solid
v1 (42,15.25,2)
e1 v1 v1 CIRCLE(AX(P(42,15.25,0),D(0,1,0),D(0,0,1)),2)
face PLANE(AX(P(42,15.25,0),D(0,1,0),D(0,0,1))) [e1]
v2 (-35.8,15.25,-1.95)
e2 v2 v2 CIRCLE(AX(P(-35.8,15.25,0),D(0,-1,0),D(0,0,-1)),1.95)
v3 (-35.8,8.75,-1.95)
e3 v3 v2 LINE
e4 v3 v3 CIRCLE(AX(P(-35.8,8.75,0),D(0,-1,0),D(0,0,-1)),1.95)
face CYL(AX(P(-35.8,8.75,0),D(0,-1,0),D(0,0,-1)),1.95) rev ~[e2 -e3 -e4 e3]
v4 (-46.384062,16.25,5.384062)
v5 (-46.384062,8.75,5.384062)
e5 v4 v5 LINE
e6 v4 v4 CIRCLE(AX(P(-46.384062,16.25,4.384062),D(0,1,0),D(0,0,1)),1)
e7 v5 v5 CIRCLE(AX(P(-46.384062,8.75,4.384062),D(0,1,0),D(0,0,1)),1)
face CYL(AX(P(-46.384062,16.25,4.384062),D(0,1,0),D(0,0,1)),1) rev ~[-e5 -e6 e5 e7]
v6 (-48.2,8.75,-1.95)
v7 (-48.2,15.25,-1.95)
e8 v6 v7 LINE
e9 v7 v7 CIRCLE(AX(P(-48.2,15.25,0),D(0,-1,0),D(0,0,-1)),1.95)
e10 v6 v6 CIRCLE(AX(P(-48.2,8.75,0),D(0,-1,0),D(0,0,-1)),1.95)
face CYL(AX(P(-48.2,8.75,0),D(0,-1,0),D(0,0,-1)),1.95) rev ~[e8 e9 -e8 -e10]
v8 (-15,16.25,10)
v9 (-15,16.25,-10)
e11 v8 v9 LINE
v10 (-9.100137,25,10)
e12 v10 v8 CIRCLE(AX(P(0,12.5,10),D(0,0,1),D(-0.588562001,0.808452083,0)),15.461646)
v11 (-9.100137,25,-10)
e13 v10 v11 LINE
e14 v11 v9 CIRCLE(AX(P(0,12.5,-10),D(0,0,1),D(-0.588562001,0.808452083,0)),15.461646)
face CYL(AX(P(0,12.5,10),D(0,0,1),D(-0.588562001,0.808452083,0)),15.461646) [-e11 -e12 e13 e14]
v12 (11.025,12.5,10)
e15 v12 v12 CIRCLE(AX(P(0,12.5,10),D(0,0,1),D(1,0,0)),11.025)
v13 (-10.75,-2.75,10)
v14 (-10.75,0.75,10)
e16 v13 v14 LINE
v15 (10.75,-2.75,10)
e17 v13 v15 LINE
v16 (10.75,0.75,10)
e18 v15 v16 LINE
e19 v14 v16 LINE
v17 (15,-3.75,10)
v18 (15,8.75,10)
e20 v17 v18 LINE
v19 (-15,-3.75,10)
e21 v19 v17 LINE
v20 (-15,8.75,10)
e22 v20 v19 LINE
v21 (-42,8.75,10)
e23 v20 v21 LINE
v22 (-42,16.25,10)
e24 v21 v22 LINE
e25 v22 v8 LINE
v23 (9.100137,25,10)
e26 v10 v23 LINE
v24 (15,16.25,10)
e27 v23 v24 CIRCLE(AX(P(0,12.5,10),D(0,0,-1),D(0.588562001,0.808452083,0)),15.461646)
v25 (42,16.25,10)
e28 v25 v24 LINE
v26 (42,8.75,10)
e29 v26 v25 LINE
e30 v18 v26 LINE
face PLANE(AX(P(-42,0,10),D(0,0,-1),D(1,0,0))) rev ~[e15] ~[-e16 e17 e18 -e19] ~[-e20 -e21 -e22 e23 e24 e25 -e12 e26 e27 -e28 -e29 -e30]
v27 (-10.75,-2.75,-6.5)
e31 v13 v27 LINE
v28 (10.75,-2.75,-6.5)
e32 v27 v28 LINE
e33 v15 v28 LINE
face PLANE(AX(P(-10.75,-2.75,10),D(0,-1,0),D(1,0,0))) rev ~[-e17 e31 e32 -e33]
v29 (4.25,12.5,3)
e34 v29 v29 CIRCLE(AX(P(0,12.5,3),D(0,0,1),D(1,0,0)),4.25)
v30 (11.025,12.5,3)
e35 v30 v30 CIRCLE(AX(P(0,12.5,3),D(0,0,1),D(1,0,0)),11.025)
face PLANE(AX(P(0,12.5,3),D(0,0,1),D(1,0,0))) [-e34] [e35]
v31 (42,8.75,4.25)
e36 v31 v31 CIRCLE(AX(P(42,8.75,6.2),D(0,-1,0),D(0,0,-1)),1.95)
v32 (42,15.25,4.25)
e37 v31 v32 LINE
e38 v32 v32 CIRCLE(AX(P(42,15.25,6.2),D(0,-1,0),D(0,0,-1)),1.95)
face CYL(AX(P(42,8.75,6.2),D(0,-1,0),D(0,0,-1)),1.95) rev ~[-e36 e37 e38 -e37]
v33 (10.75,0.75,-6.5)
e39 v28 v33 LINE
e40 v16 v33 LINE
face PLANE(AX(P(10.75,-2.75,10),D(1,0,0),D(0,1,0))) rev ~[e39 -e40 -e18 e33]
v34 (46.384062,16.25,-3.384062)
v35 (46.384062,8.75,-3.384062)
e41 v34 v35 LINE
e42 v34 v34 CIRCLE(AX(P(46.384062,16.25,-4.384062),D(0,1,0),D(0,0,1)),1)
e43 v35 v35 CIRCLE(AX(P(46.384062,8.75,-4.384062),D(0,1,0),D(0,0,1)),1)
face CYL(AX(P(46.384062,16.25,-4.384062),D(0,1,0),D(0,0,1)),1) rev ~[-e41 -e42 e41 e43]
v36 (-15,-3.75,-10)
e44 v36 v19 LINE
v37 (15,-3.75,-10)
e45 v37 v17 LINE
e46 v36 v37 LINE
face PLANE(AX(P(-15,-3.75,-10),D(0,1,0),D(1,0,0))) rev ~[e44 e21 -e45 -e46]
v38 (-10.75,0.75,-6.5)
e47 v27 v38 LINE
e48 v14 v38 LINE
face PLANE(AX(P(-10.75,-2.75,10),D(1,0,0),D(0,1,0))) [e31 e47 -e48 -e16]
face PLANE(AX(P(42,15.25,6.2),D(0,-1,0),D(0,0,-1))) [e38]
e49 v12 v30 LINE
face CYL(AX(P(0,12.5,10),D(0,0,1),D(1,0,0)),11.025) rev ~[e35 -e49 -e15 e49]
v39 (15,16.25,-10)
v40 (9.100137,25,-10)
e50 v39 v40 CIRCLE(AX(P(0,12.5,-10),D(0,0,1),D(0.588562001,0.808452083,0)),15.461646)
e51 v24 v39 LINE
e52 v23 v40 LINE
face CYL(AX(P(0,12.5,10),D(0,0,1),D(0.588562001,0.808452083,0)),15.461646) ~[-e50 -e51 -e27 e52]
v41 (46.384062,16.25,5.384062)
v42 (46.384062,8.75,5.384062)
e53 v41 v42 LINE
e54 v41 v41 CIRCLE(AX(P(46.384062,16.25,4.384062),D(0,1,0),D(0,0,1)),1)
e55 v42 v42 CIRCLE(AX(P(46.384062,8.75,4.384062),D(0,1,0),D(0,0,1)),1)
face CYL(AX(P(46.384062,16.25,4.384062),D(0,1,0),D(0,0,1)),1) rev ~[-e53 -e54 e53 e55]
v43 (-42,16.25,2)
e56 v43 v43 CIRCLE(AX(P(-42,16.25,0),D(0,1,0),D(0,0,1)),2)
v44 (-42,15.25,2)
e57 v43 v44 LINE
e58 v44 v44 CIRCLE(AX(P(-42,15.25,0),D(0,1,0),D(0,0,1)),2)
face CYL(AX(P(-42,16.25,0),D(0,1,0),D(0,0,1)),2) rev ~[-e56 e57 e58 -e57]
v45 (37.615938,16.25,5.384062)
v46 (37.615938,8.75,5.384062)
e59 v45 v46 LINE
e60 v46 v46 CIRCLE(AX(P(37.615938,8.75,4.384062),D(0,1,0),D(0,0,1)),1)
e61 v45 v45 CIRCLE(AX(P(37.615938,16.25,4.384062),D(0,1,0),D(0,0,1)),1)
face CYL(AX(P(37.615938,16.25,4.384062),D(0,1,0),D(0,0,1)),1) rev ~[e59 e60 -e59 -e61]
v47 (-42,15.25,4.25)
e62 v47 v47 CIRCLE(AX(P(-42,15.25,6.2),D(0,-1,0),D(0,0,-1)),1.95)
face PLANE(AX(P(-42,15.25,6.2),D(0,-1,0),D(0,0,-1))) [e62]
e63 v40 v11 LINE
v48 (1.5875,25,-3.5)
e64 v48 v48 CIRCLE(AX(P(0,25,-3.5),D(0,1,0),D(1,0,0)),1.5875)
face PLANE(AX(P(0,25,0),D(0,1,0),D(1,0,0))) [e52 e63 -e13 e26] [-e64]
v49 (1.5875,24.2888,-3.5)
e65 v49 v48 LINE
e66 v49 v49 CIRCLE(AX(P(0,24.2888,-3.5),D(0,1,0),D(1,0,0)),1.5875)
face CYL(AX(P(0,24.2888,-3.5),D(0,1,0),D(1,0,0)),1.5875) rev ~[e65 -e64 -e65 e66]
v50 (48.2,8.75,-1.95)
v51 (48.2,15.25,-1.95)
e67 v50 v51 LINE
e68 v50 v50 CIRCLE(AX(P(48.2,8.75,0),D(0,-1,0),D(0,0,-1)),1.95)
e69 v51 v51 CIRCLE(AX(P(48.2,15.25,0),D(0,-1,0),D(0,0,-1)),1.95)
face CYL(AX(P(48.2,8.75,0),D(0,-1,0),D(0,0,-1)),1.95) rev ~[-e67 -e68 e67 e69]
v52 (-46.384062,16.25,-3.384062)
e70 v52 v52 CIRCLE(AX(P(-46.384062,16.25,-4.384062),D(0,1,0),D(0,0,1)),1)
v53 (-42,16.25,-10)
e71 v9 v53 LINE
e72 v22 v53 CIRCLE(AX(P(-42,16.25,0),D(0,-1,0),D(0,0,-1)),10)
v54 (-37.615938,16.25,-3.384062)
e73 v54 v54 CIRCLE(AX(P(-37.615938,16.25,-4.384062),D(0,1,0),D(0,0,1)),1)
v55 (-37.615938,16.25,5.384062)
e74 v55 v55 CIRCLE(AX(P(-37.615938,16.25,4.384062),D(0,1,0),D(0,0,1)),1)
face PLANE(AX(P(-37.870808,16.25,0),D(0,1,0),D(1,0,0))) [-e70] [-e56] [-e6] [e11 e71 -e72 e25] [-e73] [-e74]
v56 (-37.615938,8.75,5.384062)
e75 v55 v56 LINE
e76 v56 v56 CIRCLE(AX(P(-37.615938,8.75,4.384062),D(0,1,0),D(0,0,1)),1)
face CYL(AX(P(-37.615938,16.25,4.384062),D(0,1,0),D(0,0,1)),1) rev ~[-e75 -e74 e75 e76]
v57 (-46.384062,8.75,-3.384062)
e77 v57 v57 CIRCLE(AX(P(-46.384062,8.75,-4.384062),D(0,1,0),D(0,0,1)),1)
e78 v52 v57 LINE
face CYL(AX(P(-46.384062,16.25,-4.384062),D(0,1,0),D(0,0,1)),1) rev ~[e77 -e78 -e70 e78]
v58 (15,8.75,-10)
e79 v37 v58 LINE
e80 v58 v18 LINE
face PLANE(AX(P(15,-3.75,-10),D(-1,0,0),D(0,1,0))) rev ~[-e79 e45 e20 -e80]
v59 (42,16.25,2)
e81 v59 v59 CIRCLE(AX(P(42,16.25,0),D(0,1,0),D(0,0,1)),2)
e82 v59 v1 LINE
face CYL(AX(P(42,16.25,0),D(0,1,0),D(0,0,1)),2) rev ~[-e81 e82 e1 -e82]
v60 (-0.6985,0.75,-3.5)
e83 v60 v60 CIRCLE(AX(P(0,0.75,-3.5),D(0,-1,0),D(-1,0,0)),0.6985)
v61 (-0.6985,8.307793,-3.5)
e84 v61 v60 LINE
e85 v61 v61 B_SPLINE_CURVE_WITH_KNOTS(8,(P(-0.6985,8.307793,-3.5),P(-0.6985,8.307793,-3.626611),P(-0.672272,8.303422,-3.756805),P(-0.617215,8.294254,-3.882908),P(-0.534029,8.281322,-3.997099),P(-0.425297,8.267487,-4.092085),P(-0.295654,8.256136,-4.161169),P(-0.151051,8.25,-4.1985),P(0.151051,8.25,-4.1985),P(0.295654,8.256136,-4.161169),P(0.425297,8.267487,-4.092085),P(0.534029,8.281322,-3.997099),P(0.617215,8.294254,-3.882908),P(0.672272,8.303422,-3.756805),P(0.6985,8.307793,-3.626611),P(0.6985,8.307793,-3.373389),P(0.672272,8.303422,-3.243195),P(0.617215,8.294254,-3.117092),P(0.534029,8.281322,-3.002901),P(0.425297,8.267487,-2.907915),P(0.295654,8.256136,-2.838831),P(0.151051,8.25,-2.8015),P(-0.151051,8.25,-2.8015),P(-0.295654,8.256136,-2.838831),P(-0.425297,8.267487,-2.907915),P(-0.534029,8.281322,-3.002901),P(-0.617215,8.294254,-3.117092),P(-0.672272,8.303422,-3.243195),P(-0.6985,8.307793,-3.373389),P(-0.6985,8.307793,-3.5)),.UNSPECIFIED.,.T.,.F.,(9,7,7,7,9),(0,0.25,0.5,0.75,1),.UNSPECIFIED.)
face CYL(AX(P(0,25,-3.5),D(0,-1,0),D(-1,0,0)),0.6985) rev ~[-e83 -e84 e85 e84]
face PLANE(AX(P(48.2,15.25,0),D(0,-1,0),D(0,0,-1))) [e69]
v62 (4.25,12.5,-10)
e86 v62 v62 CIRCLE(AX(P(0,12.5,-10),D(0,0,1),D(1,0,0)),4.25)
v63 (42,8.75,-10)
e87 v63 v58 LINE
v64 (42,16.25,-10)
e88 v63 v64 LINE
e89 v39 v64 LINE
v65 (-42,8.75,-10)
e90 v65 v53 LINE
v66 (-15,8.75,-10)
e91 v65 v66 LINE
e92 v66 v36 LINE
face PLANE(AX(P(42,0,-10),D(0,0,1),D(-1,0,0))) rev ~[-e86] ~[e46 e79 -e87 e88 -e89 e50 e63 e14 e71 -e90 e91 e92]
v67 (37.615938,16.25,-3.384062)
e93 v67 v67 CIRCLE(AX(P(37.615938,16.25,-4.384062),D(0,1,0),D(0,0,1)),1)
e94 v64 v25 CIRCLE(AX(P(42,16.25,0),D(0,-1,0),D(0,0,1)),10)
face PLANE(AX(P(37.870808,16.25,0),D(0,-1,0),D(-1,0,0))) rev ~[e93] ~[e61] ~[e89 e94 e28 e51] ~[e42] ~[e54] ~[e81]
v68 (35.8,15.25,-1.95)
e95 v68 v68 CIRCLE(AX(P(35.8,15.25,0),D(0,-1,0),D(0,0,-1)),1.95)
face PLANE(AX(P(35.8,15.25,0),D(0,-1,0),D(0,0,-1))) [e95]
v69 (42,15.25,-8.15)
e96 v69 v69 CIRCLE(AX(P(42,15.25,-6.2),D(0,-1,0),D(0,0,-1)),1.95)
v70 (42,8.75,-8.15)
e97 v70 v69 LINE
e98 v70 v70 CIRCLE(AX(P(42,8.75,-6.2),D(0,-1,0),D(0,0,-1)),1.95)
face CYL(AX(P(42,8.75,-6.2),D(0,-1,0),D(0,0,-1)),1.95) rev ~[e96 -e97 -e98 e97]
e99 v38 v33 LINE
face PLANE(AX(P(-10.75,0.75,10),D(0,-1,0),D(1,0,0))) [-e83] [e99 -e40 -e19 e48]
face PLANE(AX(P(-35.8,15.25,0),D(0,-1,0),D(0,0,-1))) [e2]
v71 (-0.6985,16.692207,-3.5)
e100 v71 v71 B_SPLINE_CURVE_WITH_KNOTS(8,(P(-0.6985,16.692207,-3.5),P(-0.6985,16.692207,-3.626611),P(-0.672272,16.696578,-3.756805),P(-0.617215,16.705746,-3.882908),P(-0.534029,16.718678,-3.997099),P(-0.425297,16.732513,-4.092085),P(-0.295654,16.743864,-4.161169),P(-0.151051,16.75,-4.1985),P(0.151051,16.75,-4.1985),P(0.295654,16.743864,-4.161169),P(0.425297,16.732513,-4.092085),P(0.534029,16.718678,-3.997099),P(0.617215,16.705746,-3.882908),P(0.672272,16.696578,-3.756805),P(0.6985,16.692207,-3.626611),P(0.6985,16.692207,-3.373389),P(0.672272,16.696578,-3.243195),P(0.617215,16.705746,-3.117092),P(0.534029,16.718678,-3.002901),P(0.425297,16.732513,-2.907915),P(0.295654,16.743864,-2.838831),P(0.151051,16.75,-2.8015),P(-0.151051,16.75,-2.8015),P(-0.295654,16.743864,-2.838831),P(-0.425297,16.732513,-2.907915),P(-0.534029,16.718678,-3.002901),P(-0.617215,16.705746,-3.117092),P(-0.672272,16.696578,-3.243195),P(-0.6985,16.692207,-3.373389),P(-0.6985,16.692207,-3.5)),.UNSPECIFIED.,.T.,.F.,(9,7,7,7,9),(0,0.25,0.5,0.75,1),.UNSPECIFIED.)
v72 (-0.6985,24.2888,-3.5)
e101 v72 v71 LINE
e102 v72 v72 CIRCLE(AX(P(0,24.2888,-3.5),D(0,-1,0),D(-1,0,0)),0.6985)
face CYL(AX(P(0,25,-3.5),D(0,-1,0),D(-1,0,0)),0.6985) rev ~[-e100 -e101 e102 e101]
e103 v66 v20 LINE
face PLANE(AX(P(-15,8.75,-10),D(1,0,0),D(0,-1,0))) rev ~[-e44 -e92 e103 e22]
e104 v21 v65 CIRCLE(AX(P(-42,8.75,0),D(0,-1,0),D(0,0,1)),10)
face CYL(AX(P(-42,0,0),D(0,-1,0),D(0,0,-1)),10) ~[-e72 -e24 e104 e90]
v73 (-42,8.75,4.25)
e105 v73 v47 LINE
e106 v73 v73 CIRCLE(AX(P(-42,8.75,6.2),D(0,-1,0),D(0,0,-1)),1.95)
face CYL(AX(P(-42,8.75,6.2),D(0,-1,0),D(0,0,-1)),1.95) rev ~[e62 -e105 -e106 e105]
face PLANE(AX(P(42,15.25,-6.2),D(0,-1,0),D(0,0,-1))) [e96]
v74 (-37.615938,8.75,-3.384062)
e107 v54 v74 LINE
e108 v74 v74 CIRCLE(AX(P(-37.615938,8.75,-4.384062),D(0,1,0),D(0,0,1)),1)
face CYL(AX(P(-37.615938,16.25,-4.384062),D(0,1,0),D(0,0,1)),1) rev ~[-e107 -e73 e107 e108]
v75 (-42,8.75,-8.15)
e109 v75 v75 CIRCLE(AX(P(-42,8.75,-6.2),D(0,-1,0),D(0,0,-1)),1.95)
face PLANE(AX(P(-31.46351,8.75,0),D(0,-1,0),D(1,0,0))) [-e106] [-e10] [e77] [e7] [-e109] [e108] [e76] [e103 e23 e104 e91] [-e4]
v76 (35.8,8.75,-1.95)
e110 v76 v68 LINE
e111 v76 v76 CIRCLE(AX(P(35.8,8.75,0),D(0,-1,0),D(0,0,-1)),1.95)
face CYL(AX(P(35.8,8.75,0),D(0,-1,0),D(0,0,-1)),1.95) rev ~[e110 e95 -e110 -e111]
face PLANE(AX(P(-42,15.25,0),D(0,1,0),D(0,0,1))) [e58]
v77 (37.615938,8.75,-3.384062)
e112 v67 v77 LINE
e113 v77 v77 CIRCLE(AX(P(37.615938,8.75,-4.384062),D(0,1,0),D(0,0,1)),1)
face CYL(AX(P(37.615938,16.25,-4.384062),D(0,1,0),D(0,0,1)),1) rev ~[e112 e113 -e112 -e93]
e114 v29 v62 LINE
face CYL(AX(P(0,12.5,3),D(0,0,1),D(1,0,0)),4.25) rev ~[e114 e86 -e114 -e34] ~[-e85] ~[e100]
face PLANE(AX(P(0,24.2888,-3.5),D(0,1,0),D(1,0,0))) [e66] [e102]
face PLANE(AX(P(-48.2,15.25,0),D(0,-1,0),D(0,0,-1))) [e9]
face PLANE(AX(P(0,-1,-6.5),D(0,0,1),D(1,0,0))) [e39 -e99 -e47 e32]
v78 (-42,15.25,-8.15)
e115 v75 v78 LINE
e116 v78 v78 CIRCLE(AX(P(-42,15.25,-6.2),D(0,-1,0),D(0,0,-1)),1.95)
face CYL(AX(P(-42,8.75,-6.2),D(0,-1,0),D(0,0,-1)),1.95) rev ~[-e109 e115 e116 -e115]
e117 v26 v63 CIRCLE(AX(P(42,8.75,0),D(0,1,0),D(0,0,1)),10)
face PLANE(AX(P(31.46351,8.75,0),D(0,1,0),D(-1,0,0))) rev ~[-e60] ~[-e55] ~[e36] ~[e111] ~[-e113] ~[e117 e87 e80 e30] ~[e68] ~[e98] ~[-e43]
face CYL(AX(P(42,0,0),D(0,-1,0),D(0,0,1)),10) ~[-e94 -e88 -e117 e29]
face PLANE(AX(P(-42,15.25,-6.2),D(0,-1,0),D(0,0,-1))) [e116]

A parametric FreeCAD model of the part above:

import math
import FreeCAD as App
import Part
import Sketcher


def add_polygon(sketch, points):
    """Adds a closed chain of lines whose ends are joined by coincident constraints."""
    first, n = sketch.GeometryCount, len(points)
    for a, b in zip(points, points[1:] + points[:1]):
        sketch.addGeometry(Part.LineSegment(App.Vector(*a, 0), App.Vector(*b, 0)), False)
    for i in range(n):
        sketch.addConstraint(Sketcher.Constraint("Coincident", first + i, 2, first + (i + 1) % n, 1))

doc = App.newDocument("Part")
body = doc.addObject("PartDesign::Body", "Body")

sketch1 = doc.addObject("Sketcher::SketchObject", "Sketch")
body.addObject(sketch1)
sketch1.AttachmentSupport = (doc.XZ_Plane, [""])
sketch1.MapMode = "FlatFace"
sketch1.addGeometry(Part.LineSegment(App.Vector(-42, 10, 0), App.Vector(42, 10, 0)), False)
sketch1.addGeometry(Part.ArcOfCircle(Part.Circle(App.Vector(42, 0, 0), App.Vector(0, 0, 1), 10), math.radians(-90), math.radians(90)), False)
sketch1.addGeometry(Part.LineSegment(App.Vector(42, -10, 0), App.Vector(-42, -10, 0)), False)
sketch1.addGeometry(Part.ArcOfCircle(Part.Circle(App.Vector(-42, 0, 0), App.Vector(0, 0, 1), 10), math.radians(90), math.radians(270)), False)
sketch1.addConstraint(Sketcher.Constraint("Tangent", 0, 2, 1, 2))
sketch1.addConstraint(Sketcher.Constraint("Tangent", 1, 1, 2, 1))
sketch1.addConstraint(Sketcher.Constraint("Tangent", 2, 2, 3, 2))
sketch1.addConstraint(Sketcher.Constraint("Tangent", 3, 1, 0, 1))
sketch1.addConstraint(Sketcher.Constraint("Horizontal", 0))
sketch1.addConstraint(Sketcher.Constraint("Horizontal", 2))
sketch1.addConstraint(Sketcher.Constraint("Symmetric", 1, 3, 3, 3, -1, 1))
sketch1.addConstraint(Sketcher.Constraint("Radius", 1, 10.0))
sketch1.addConstraint(Sketcher.Constraint("DistanceX", 0, 1, 0, 2, 84.0))
pad1 = doc.addObject("PartDesign::Pad", "Pad")
body.addObject(pad1)
pad1.Profile = sketch1
pad1.Length = 25
pad1.Reversed = True

sketch2 = doc.addObject("Sketcher::SketchObject", "Sketch001")
body.addObject(sketch2)
sketch2.AttachmentSupport = (doc.XY_Plane, [""])
sketch2.MapMode = "FlatFace"
sketch2.AttachmentOffset = App.Placement(App.Vector(0, 0, 10), App.Rotation())
sketch2.addGeometry(Part.Circle(App.Vector(0, 12, 0), App.Vector(0, 0, 1), 11), False)
sketch2.addConstraint(Sketcher.Constraint("PointOnObject", 0, 3, -2))
sketch2.addConstraint(Sketcher.Constraint("Diameter", 0, 22.05))
sketch2.addConstraint(Sketcher.Constraint("DistanceY", -1, 1, 0, 3, 12.5))
pocket1 = doc.addObject("PartDesign::Pocket", "Pocket")
body.addObject(pocket1)
pocket1.Profile = sketch2
pocket1.Length = 7

sketch3 = doc.addObject("Sketcher::SketchObject", "Sketch002")
body.addObject(sketch3)
sketch3.AttachmentSupport = (doc.XZ_Plane, [""])
sketch3.MapMode = "FlatFace"
sketch3.addGeometry(Part.LineSegment(App.Vector(15, 10, 0), App.Vector(15, -10, 0)), False)
sketch3.addGeometry(Part.LineSegment(App.Vector(15, -10, 0), App.Vector(42, -10, 0)), False)
sketch3.addGeometry(Part.ArcOfCircle(Part.Circle(App.Vector(42, 0, 0), App.Vector(0, 0, 1), 10), math.radians(-90), math.radians(90)), False)
sketch3.addGeometry(Part.LineSegment(App.Vector(42, 10, 0), App.Vector(15, 10, 0)), False)
sketch3.addGeometry(Part.LineSegment(App.Vector(-15, -10, 0), App.Vector(-15, 10, 0)), False)
sketch3.addGeometry(Part.LineSegment(App.Vector(-15, 10, 0), App.Vector(-42, 10, 0)), False)
sketch3.addGeometry(Part.ArcOfCircle(Part.Circle(App.Vector(-42, 0, 0), App.Vector(0, 0, 1), 10), math.radians(90), math.radians(270)), False)
sketch3.addGeometry(Part.LineSegment(App.Vector(-42, -10, 0), App.Vector(-15, -10, 0)), False)
sketch3.addConstraint(Sketcher.Constraint("Coincident", 0, 2, 1, 1))
sketch3.addConstraint(Sketcher.Constraint("Tangent", 1, 2, 2, 1))
sketch3.addConstraint(Sketcher.Constraint("Tangent", 2, 2, 3, 1))
sketch3.addConstraint(Sketcher.Constraint("Coincident", 3, 2, 0, 1))
sketch3.addConstraint(Sketcher.Constraint("Coincident", 4, 2, 5, 1))
sketch3.addConstraint(Sketcher.Constraint("Tangent", 5, 2, 6, 1))
sketch3.addConstraint(Sketcher.Constraint("Tangent", 6, 2, 7, 1))
sketch3.addConstraint(Sketcher.Constraint("Coincident", 7, 2, 4, 1))
sketch3.addConstraint(Sketcher.Constraint("Vertical", 0))
sketch3.addConstraint(Sketcher.Constraint("Horizontal", 1))
sketch3.addConstraint(Sketcher.Constraint("Horizontal", 3))
sketch3.addConstraint(Sketcher.Constraint("Vertical", 4))
sketch3.addConstraint(Sketcher.Constraint("Horizontal", 5))
sketch3.addConstraint(Sketcher.Constraint("Horizontal", 7))
sketch3.addConstraint(Sketcher.Constraint("Equal", 2, 6))
sketch3.addConstraint(Sketcher.Constraint("Symmetric", 2, 3, 6, 3, -1, 1))
sketch3.addConstraint(Sketcher.Constraint("Symmetric", 3, 2, 4, 2, -2))
sketch3.addConstraint(Sketcher.Constraint("Radius", 2, 10.0))
sketch3.addConstraint(Sketcher.Constraint("DistanceX", 1, 1, 1, 2, 27.0))
sketch3.addConstraint(Sketcher.Constraint("DistanceX", -1, 1, 2, 3, 42.0))
pocket2 = doc.addObject("PartDesign::Pocket", "Pocket001")
body.addObject(pocket2)
pocket2.Profile = sketch3
pocket2.Length = 8.75

sketch4 = doc.addObject("Sketcher::SketchObject", "Sketch003")
body.addObject(sketch4)
sketch4.AttachmentSupport = (doc.XZ_Plane, [""])
sketch4.MapMode = "FlatFace"
sketch4.AttachmentOffset = App.Placement(App.Vector(0, 0, -25), App.Rotation())
sketch4.addGeometry(Part.LineSegment(App.Vector(15, -10, 0), App.Vector(15, 10, 0)), False)
sketch4.addGeometry(Part.LineSegment(App.Vector(15, 10, 0), App.Vector(55, 10, 0)), False)
sketch4.addGeometry(Part.ArcOfCircle(Part.Circle(App.Vector(55, 0, 0), App.Vector(0, 0, 1), 10), math.radians(-90), math.radians(90)), False)
sketch4.addGeometry(Part.LineSegment(App.Vector(55, -10, 0), App.Vector(15, -10, 0)), False)
sketch4.addGeometry(Part.LineSegment(App.Vector(-15, 10, 0), App.Vector(-15, -10, 0)), False)
sketch4.addGeometry(Part.LineSegment(App.Vector(-15, -10, 0), App.Vector(-55, -10, 0)), False)
sketch4.addGeometry(Part.ArcOfCircle(Part.Circle(App.Vector(-55, 0, 0), App.Vector(0, 0, 1), 10), math.radians(90), math.radians(270)), False)
sketch4.addGeometry(Part.LineSegment(App.Vector(-55, 10, 0), App.Vector(-15, 10, 0)), False)
sketch4.addConstraint(Sketcher.Constraint("Coincident", 0, 2, 1, 1))
sketch4.addConstraint(Sketcher.Constraint("Tangent", 1, 2, 2, 2))
sketch4.addConstraint(Sketcher.Constraint("Tangent", 2, 1, 3, 1))
sketch4.addConstraint(Sketcher.Constraint("Coincident", 3, 2, 0, 1))
sketch4.addConstraint(Sketcher.Constraint("Coincident", 4, 2, 5, 1))
sketch4.addConstraint(Sketcher.Constraint("Tangent", 5, 2, 6, 2))
sketch4.addConstraint(Sketcher.Constraint("Tangent", 6, 1, 7, 1))
sketch4.addConstraint(Sketcher.Constraint("Coincident", 7, 2, 4, 1))
sketch4.addConstraint(Sketcher.Constraint("Vertical", 0))
sketch4.addConstraint(Sketcher.Constraint("Horizontal", 1))
sketch4.addConstraint(Sketcher.Constraint("Horizontal", 3))
sketch4.addConstraint(Sketcher.Constraint("Vertical", 4))
sketch4.addConstraint(Sketcher.Constraint("Horizontal", 5))
sketch4.addConstraint(Sketcher.Constraint("Horizontal", 7))
sketch4.addConstraint(Sketcher.Constraint("Equal", 2, 6))
sketch4.addConstraint(Sketcher.Constraint("Symmetric", 2, 3, 6, 3, -1, 1))
sketch4.addConstraint(Sketcher.Constraint("Symmetric", 3, 2, 4, 2, -2))
sketch4.addConstraint(Sketcher.Constraint("Radius", 2, 10.0))
sketch4.addConstraint(Sketcher.Constraint("DistanceX", 1, 1, 1, 2, 40.0))
sketch4.addConstraint(Sketcher.Constraint("DistanceX", -1, 1, 2, 3, 55.0))
pocket3 = doc.addObject("PartDesign::Pocket", "Pocket002")
body.addObject(pocket3)
pocket3.Profile = sketch4
pocket3.Length = 8.75
pocket3.Reversed = True

sketch5 = doc.addObject("Sketcher::SketchObject", "Sketch004")
body.addObject(sketch5)
sketch5.AttachmentSupport = (doc.XZ_Plane, [""])
sketch5.MapMode = "FlatFace"
sketch5.AttachmentOffset = App.Placement(App.Vector(0, 0, -16.25), App.Rotation())
sketch5.addGeometry(Part.Circle(App.Vector(-46.4, -4.4, 0), App.Vector(0, 0, 1), 1), False)
sketch5.addGeometry(Part.Circle(App.Vector(-37.6, -4.4, 0), App.Vector(0, 0, 1), 1), False)
sketch5.addGeometry(Part.Circle(App.Vector(-37.6, 4.4, 0), App.Vector(0, 0, 1), 1), False)
sketch5.addGeometry(Part.Circle(App.Vector(-46.4, 4.4, 0), App.Vector(0, 0, 1), 1), False)
sketch5.addGeometry(Part.Circle(App.Vector(37.6, -4.4, 0), App.Vector(0, 0, 1), 1), False)
sketch5.addGeometry(Part.Circle(App.Vector(46.4, -4.4, 0), App.Vector(0, 0, 1), 1), False)
sketch5.addGeometry(Part.Circle(App.Vector(46.4, 4.4, 0), App.Vector(0, 0, 1), 1), False)
sketch5.addGeometry(Part.Circle(App.Vector(37.6, 4.4, 0), App.Vector(0, 0, 1), 1), False)
sketch5.addConstraint(Sketcher.Constraint("Equal", 0, 1))
sketch5.addConstraint(Sketcher.Constraint("Equal", 1, 2))
sketch5.addConstraint(Sketcher.Constraint("Equal", 2, 3))
sketch5.addConstraint(Sketcher.Constraint("Equal", 3, 4))
sketch5.addConstraint(Sketcher.Constraint("Equal", 4, 5))
sketch5.addConstraint(Sketcher.Constraint("Equal", 5, 6))
sketch5.addConstraint(Sketcher.Constraint("Equal", 6, 7))
sketch5.addConstraint(Sketcher.Constraint("Symmetric", 2, 3, 4, 3, -1, 1))
sketch5.addConstraint(Sketcher.Constraint("Symmetric", 3, 3, 5, 3, -1, 1))
sketch5.addConstraint(Sketcher.Constraint("Symmetric", 0, 3, 6, 3, -1, 1))
sketch5.addConstraint(Sketcher.Constraint("Symmetric", 1, 3, 7, 3, -1, 1))
sketch5.addConstraint(Sketcher.Constraint("Symmetric", 1, 3, 4, 3, -2))
sketch5.addConstraint(Sketcher.Constraint("Symmetric", 0, 3, 5, 3, -2))
sketch5.addConstraint(Sketcher.Constraint("Horizontal", 0, 3, 1, 3))
sketch5.addConstraint(Sketcher.Constraint("Diameter", 0, 2.0))
sketch5.addConstraint(Sketcher.Constraint("DistanceX", 0, 3, 4, 3, 84.0))
sketch5.addConstraint(Sketcher.Constraint("DistanceX", 0, 3, -1, 1, 46.384062))
sketch5.addConstraint(Sketcher.Constraint("DistanceY", 0, 3, -1, 1, 4.384062))
pocket4 = doc.addObject("PartDesign::Pocket", "Pocket003")
body.addObject(pocket4)
pocket4.Profile = sketch5
pocket4.Length = 7.5
pocket4.Reversed = True

sketch6 = doc.addObject("Sketcher::SketchObject", "Sketch005")
body.addObject(sketch6)
sketch6.AttachmentSupport = (doc.XZ_Plane, [""])
sketch6.MapMode = "FlatFace"
sketch6.AttachmentOffset = App.Placement(App.Vector(0, 0, -8.75), App.Rotation())
sketch6.addGeometry(Part.Circle(App.Vector(-42, 6.2, 0), App.Vector(0, 0, 1), 1.9), False)
sketch6.addGeometry(Part.Circle(App.Vector(-35.8, 0, 0), App.Vector(0, 0, 1), 1.9), False)
sketch6.addGeometry(Part.Circle(App.Vector(-48.2, 0, 0), App.Vector(0, 0, 1), 1.9), False)
sketch6.addGeometry(Part.Circle(App.Vector(-42, -6.2, 0), App.Vector(0, 0, 1), 1.9), False)
sketch6.addGeometry(Part.Circle(App.Vector(42, 6.2, 0), App.Vector(0, 0, 1), 1.9), False)
sketch6.addGeometry(Part.Circle(App.Vector(48.2, 0, 0), App.Vector(0, 0, 1), 1.9), False)
sketch6.addGeometry(Part.Circle(App.Vector(35.8, 0, 0), App.Vector(0, 0, 1), 1.9), False)
sketch6.addGeometry(Part.Circle(App.Vector(42, -6.2, 0), App.Vector(0, 0, 1), 1.9), False)
sketch6.addConstraint(Sketcher.Constraint("Equal", 0, 1))
sketch6.addConstraint(Sketcher.Constraint("Equal", 1, 2))
sketch6.addConstraint(Sketcher.Constraint("Equal", 2, 3))
sketch6.addConstraint(Sketcher.Constraint("Equal", 3, 4))
sketch6.addConstraint(Sketcher.Constraint("Equal", 4, 5))
sketch6.addConstraint(Sketcher.Constraint("Equal", 5, 6))
sketch6.addConstraint(Sketcher.Constraint("Equal", 6, 7))
sketch6.addConstraint(Sketcher.Constraint("Symmetric", 3, 3, 4, 3, -1, 1))
sketch6.addConstraint(Sketcher.Constraint("Symmetric", 2, 3, 5, 3, -1, 1))
sketch6.addConstraint(Sketcher.Constraint("Symmetric", 1, 3, 6, 3, -1, 1))
sketch6.addConstraint(Sketcher.Constraint("Symmetric", 0, 3, 7, 3, -1, 1))
sketch6.addConstraint(Sketcher.Constraint("Symmetric", 0, 3, 4, 3, -2))
sketch6.addConstraint(Sketcher.Constraint("PointOnObject", 1, 3, -1))
sketch6.addConstraint(Sketcher.Constraint("PointOnObject", 2, 3, -1))
sketch6.addConstraint(Sketcher.Constraint("Diameter", 0, 3.9))
sketch6.addConstraint(Sketcher.Constraint("DistanceX", 0, 3, -1, 1, 42.0))
sketch6.addConstraint(Sketcher.Constraint("DistanceX", 1, 3, 5, 3, 84.0))
sketch6.addConstraint(Sketcher.Constraint("DistanceY", -1, 1, 0, 3, 6.2))
sketch6.addConstraint(Sketcher.Constraint("DistanceX", 1, 3, -1, 1, 35.8))
pocket5 = doc.addObject("PartDesign::Pocket", "Pocket004")
body.addObject(pocket5)
pocket5.Profile = sketch6
pocket5.Length = 6.5

sketch7 = doc.addObject("Sketcher::SketchObject", "Sketch006")
body.addObject(sketch7)
sketch7.AttachmentSupport = (doc.XZ_Plane, [""])
sketch7.MapMode = "FlatFace"
sketch7.AttachmentOffset = App.Placement(App.Vector(0, 0, -16.25), App.Rotation())
sketch7.addGeometry(Part.Circle(App.Vector(-42, 0, 0), App.Vector(0, 0, 1), 2), False)
sketch7.addGeometry(Part.Circle(App.Vector(42, 0, 0), App.Vector(0, 0, 1), 2), False)
sketch7.addConstraint(Sketcher.Constraint("Equal", 0, 1))
sketch7.addConstraint(Sketcher.Constraint("Symmetric", 0, 3, 1, 3, -1, 1))
sketch7.addConstraint(Sketcher.Constraint("PointOnObject", 0, 3, -1))
sketch7.addConstraint(Sketcher.Constraint("Diameter", 0, 4.0))
sketch7.addConstraint(Sketcher.Constraint("DistanceX", 0, 3, -1, 1, 42.0))
pocket6 = doc.addObject("PartDesign::Pocket", "Pocket005")
body.addObject(pocket6)
pocket6.Profile = sketch7
pocket6.Length = 1
pocket6.Reversed = True

sketch8 = doc.addObject("Sketcher::SketchObject", "Sketch007")
body.addObject(sketch8)
sketch8.AttachmentSupport = (doc.XY_Plane, [""])
sketch8.MapMode = "FlatFace"
sketch8.AttachmentOffset = App.Placement(App.Vector(0, 0, 10), App.Rotation())
sketch8.addGeometry(Part.LineSegment(App.Vector(-15, 25, 0), App.Vector(-15, 16, 0)), False)
sketch8.addGeometry(Part.ArcOfCircle(Part.Circle(App.Vector(0, 12, 0), App.Vector(0, 0, 1), 15), math.radians(126), math.radians(166)), False)
sketch8.addGeometry(Part.LineSegment(App.Vector(-9, 25, 0), App.Vector(-15, 25, 0)), False)
sketch8.addGeometry(Part.LineSegment(App.Vector(9, 0, 0), App.Vector(15, 0, 0)), False)
sketch8.addGeometry(Part.LineSegment(App.Vector(15, 0, 0), App.Vector(15, 9, 0)), False)
sketch8.addGeometry(Part.ArcOfCircle(Part.Circle(App.Vector(0, 13, 0), App.Vector(0, 0, 1), 15), math.radians(-54), math.radians(-14)), False)
sketch8.addGeometry(Part.LineSegment(App.Vector(15, 25, 0), App.Vector(9, 25, 0)), False)
sketch8.addGeometry(Part.ArcOfCircle(Part.Circle(App.Vector(0, 12, 0), App.Vector(0, 0, 1), 15), math.radians(14), math.radians(54)), False)
sketch8.addGeometry(Part.LineSegment(App.Vector(15, 16, 0), App.Vector(15, 25, 0)), False)
sketch8.addGeometry(Part.LineSegment(App.Vector(-15, 9, 0), App.Vector(-15, 0, 0)), False)
sketch8.addGeometry(Part.LineSegment(App.Vector(-15, 0, 0), App.Vector(-9, 0, 0)), False)
sketch8.addGeometry(Part.ArcOfCircle(Part.Circle(App.Vector(0, 13, 0), App.Vector(0, 0, 1), 15), math.radians(-166), math.radians(-126)), False)
sketch8.addConstraint(Sketcher.Constraint("Coincident", 0, 2, 1, 2))
sketch8.addConstraint(Sketcher.Constraint("Coincident", 1, 1, 2, 1))
sketch8.addConstraint(Sketcher.Constraint("Coincident", 2, 2, 0, 1))
sketch8.addConstraint(Sketcher.Constraint("Coincident", 3, 2, 4, 1))
sketch8.addConstraint(Sketcher.Constraint("Coincident", 4, 2, 5, 2))
sketch8.addConstraint(Sketcher.Constraint("Coincident", 5, 1, 3, 1))
sketch8.addConstraint(Sketcher.Constraint("Coincident", 6, 2, 7, 2))
sketch8.addConstraint(Sketcher.Constraint("Coincident", 7, 1, 8, 1))
sketch8.addConstraint(Sketcher.Constraint("Coincident", 8, 2, 6, 1))
sketch8.addConstraint(Sketcher.Constraint("Coincident", 9, 2, 10, 1))
sketch8.addConstraint(Sketcher.Constraint("Coincident", 10, 2, 11, 2))
sketch8.addConstraint(Sketcher.Constraint("Coincident", 11, 1, 9, 1))
sketch8.addConstraint(Sketcher.Constraint("Vertical", 0))
sketch8.addConstraint(Sketcher.Constraint("Horizontal", 2))
sketch8.addConstraint(Sketcher.Constraint("Horizontal", 3))
sketch8.addConstraint(Sketcher.Constraint("Vertical", 4))
sketch8.addConstraint(Sketcher.Constraint("Horizontal", 6))
sketch8.addConstraint(Sketcher.Constraint("Vertical", 8))
sketch8.addConstraint(Sketcher.Constraint("Vertical", 9))
sketch8.addConstraint(Sketcher.Constraint("Horizontal", 10))
sketch8.addConstraint(Sketcher.Constraint("Coincident", 5, 3, 1, 3))
sketch8.addConstraint(Sketcher.Constraint("Coincident", 7, 3, 1, 3))
sketch8.addConstraint(Sketcher.Constraint("Coincident", 11, 3, 1, 3))
sketch8.addConstraint(Sketcher.Constraint("Equal", 1, 5))
sketch8.addConstraint(Sketcher.Constraint("Equal", 5, 7))
sketch8.addConstraint(Sketcher.Constraint("Equal", 7, 11))
sketch8.addConstraint(Sketcher.Constraint("Symmetric", 3, 2, 9, 2, -1, 1))
sketch8.addConstraint(Sketcher.Constraint("Symmetric", 1, 1, 6, 2, -2))
sketch8.addConstraint(Sketcher.Constraint("PointOnObject", 3, 2, -1))
sketch8.addConstraint(Sketcher.Constraint("Horizontal", 0, 2, 7, 1))
sketch8.addConstraint(Sketcher.Constraint("Vertical", 5, 1, 6, 2))
sketch8.addConstraint(Sketcher.Constraint("Vertical", 4, 2, 7, 1))
sketch8.addConstraint(Sketcher.Constraint("DistanceX", 0, 2, -1, 1, 15.0))
sketch8.addConstraint(Sketcher.Constraint("DistanceY", -1, 1, 1, 1, 25.0))
sketch8.addConstraint(Sketcher.Constraint("DistanceY", 0, 2, 0, 1, 8.75))
pocket7 = doc.addObject("PartDesign::Pocket", "Pocket006")
body.addObject(pocket7)
pocket7.Profile = sketch8
pocket7.Type = "ThroughAll"

sketch9 = doc.addObject("Sketcher::SketchObject", "Sketch008")
body.addObject(sketch9)
sketch9.AttachmentSupport = (doc.XY_Plane, [""])
sketch9.MapMode = "FlatFace"
sketch9.AttachmentOffset = App.Placement(App.Vector(0, 0, 3), App.Rotation())
sketch9.addGeometry(Part.Circle(App.Vector(0, 12.5, 0), App.Vector(0, 0, 1), 4.2), False)
sketch9.addConstraint(Sketcher.Constraint("PointOnObject", 0, 3, -2))
sketch9.addConstraint(Sketcher.Constraint("Diameter", 0, 8.5))
sketch9.addConstraint(Sketcher.Constraint("DistanceY", -1, 1, 0, 3, 12.5))
pocket8 = doc.addObject("PartDesign::Pocket", "Pocket007")
body.addObject(pocket8)
pocket8.Profile = sketch9
pocket8.Type = "UpToFirst"

sketch10 = doc.addObject("Sketcher::SketchObject", "Sketch009")
body.addObject(sketch10)
sketch10.AttachmentSupport = (doc.XZ_Plane, [""])
sketch10.MapMode = "FlatFace"
sketch10.AttachmentOffset = App.Placement(App.Vector(0, 0, -25), App.Rotation())
sketch10.addGeometry(Part.Circle(App.Vector(0, -3.5, 0), App.Vector(0, 0, 1), 0.7), False)
sketch10.addConstraint(Sketcher.Constraint("PointOnObject", 0, 3, -2))
sketch10.addConstraint(Sketcher.Constraint("Diameter", 0, 1.397))
sketch10.addConstraint(Sketcher.Constraint("DistanceY", 0, 3, -1, 1, 3.5))
doc.recompute()
hole = doc.addObject("PartDesign::Hole", "Hole")
body.addObject(hole)
hole.Profile = sketch10
hole.ThreadType = "None"
hole.Diameter = 1.397
hole.DepthType = "Dimension"
hole.Depth = 25
hole.DrillPoint = "Angled"
hole.DrillPointAngle = 118
hole.HoleCutType = "Counterbore"
hole.HoleCutDiameter = 3.175
hole.HoleCutDepth = 0.7112
hole.Reversed = True

sketch11 = doc.addObject("Sketcher::SketchObject", "Sketch010")
body.addObject(sketch11)
sketch11.AttachmentSupport = (doc.XY_Plane, [""])
sketch11.MapMode = "FlatFace"
sketch11.AttachmentOffset = App.Placement(App.Vector(0, 0, -10), App.Rotation())
sketch11.addGeometry(Part.LineSegment(App.Vector(-9, 0, 0), App.Vector(9, 0, 0)), False)
sketch11.addGeometry(Part.ArcOfCircle(Part.Circle(App.Vector(0, 13, 0), App.Vector(0, 0, 1), 15), math.radians(-54), math.radians(-14)), False)
sketch11.addGeometry(Part.LineSegment(App.Vector(15, 9, 0), App.Vector(15, -4, 0)), False)
sketch11.addGeometry(Part.LineSegment(App.Vector(15, -4, 0), App.Vector(-15, -4, 0)), False)
sketch11.addGeometry(Part.LineSegment(App.Vector(-15, -4, 0), App.Vector(-15, 9, 0)), False)
sketch11.addGeometry(Part.ArcOfCircle(Part.Circle(App.Vector(0, 13, 0), App.Vector(0, 0, 1), 15), math.radians(-166), math.radians(-126)), False)
sketch11.addConstraint(Sketcher.Constraint("Coincident", 0, 2, 1, 1))
sketch11.addConstraint(Sketcher.Constraint("Coincident", 1, 2, 2, 1))
sketch11.addConstraint(Sketcher.Constraint("Coincident", 2, 2, 3, 1))
sketch11.addConstraint(Sketcher.Constraint("Coincident", 3, 2, 4, 1))
sketch11.addConstraint(Sketcher.Constraint("Coincident", 4, 2, 5, 1))
sketch11.addConstraint(Sketcher.Constraint("Coincident", 5, 2, 0, 1))
sketch11.addConstraint(Sketcher.Constraint("Horizontal", 0))
sketch11.addConstraint(Sketcher.Constraint("Vertical", 2))
sketch11.addConstraint(Sketcher.Constraint("Horizontal", 3))
sketch11.addConstraint(Sketcher.Constraint("Vertical", 4))
sketch11.addConstraint(Sketcher.Constraint("Coincident", 5, 3, 1, 3))
sketch11.addConstraint(Sketcher.Constraint("Equal", 1, 5))
sketch11.addConstraint(Sketcher.Constraint("Symmetric", 0, 2, 5, 2, -1, 1))
sketch11.addConstraint(Sketcher.Constraint("Horizontal", 1, 2, 4, 2))
sketch11.addConstraint(Sketcher.Constraint("DistanceX", 3, 2, 3, 1, 30.0))
sketch11.addConstraint(Sketcher.Constraint("DistanceY", 2, 2, 2, 1, 12.5))
sketch11.addConstraint(Sketcher.Constraint("DistanceY", -1, 1, 1, 3, 12.5))
sketch11.addConstraint(Sketcher.Constraint("DistanceY", -1, 1, 1, 2, 8.75))
pad2 = doc.addObject("PartDesign::Pad", "Pad001")
body.addObject(pad2)
pad2.Profile = sketch11
pad2.Length = 20

sketch12 = doc.addObject("Sketcher::SketchObject", "Sketch011")
body.addObject(sketch12)
sketch12.AttachmentSupport = (doc.XY_Plane, [""])
sketch12.MapMode = "FlatFace"
sketch12.AttachmentOffset = App.Placement(App.Vector(0, 0, 10), App.Rotation())
add_polygon(sketch12, [(-10.8, 0.8), (-10.8, -2.8), (10.8, -2.8), (10.8, 0.8)])
sketch12.addConstraint(Sketcher.Constraint("Vertical", 0))
sketch12.addConstraint(Sketcher.Constraint("Horizontal", 1))
sketch12.addConstraint(Sketcher.Constraint("Vertical", 2))
sketch12.addConstraint(Sketcher.Constraint("Horizontal", 3))
sketch12.addConstraint(Sketcher.Constraint("DistanceX", 1, 1, 1, 2, 21.5))
sketch12.addConstraint(Sketcher.Constraint("DistanceY", 0, 2, 0, 1, 3.5))
sketch12.addConstraint(Sketcher.Constraint("DistanceX", 0, 2, -1, 1, 10.75))
sketch12.addConstraint(Sketcher.Constraint("DistanceY", 0, 2, -1, 1, 2.75))
pocket9 = doc.addObject("PartDesign::Pocket", "Pocket008")
body.addObject(pocket9)
pocket9.Profile = sketch12
pocket9.Length = 16.5

doc.recompute()
